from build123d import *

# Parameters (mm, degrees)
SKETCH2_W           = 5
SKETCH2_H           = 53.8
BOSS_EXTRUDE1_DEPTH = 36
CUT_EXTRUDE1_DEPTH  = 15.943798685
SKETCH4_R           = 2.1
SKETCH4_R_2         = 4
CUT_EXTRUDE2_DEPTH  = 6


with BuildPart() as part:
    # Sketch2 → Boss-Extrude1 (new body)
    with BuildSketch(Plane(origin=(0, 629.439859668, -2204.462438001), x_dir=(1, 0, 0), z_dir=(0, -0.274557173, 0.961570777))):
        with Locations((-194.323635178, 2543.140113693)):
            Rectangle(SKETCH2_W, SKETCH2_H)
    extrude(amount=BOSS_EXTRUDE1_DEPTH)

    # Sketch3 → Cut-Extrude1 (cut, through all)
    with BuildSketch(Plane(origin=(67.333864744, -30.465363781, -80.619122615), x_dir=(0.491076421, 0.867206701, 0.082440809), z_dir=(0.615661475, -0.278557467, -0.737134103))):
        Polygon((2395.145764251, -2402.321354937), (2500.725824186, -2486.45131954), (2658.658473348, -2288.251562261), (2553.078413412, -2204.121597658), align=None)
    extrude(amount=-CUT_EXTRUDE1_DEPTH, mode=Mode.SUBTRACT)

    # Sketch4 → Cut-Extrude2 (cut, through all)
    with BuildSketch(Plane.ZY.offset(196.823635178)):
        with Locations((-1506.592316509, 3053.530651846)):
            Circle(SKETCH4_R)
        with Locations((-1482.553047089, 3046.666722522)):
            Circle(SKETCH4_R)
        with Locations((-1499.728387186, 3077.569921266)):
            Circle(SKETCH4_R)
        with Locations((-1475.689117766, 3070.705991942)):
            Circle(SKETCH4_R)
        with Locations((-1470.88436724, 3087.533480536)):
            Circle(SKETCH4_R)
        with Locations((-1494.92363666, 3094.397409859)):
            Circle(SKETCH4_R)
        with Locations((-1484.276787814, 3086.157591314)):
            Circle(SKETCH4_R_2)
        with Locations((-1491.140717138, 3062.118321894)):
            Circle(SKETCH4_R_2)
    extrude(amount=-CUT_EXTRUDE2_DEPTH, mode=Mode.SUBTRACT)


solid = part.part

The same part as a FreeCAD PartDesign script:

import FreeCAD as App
import Part
import Sketcher
from FreeCAD import Vector


def add_polygon(sketch, points):
    """Adds a closed chain of lines whose ends are joined by coincident constraints."""
    first, n = sketch.GeometryCount, len(points)
    for a, b in zip(points, points[1:] + points[:1]):
        sketch.addGeometry(Part.LineSegment(App.Vector(*a, 0), App.Vector(*b, 0)), False)
    for i in range(n):
        sketch.addConstraint(Sketcher.Constraint("Coincident", first + i, 2, first + (i + 1) % n, 1))

doc = App.newDocument("Part")
params = doc.addObject("Spreadsheet::Sheet", "Params")
for row, (alias, value) in enumerate([
    ("sketch1_width", "5 mm"),
    ("sketch1_height", "53.8 mm"),
    ("pad1_length", "36 mm"),
    ("sketch2_length", "135 mm"),
    ("sketch3_diameter", "8 mm"),
    ("sketch3_diameter2", "4.2 mm"),
], start=1):
    params.set(f"A{row}", alias)
    params.set(f"B{row}", "=" + value)
    params.setAlias(f"B{row}", alias)

body = doc.addObject("PartDesign::Body", "Body")

sketch1 = body.newObject("Sketcher::SketchObject", "Sketch")
sketch1.Placement = App.Placement(Vector(0, 629.43986, -2204.462438), App.Rotation(Vector(1, 0, 0), Vector(0, 0.961570777, 0.274557173), Vector(0, -0.274557173, 0.961570777), "ZXY"))
add_polygon(sketch1, [(-197, 2570), (-197, 2516), (-192, 2516), (-192, 2570)])
sketch1.addConstraint(Sketcher.Constraint("Vertical", 0))
sketch1.addConstraint(Sketcher.Constraint("Horizontal", 1))
sketch1.addConstraint(Sketcher.Constraint("Vertical", 2))
sketch1.addConstraint(Sketcher.Constraint("Horizontal", 3))
sketch1.addConstraint(Sketcher.Constraint("DistanceX", 1, 1, 1, 2, 5.0))
sketch1.addConstraint(Sketcher.Constraint("DistanceY", 0, 2, 0, 1, 53.8))
sketch1.addConstraint(Sketcher.Constraint("DistanceX", 0, 2, -1, 1, 196.823635))
sketch1.addConstraint(Sketcher.Constraint("DistanceY", -1, 1, 0, 2, 2516.240115))
sketch1.setExpression("Constraints[8]", "Params.sketch1_width")
sketch1.setExpression("Constraints[9]", "Params.sketch1_height")
pad1 = body.newObject("PartDesign::Pad", "Pad")
pad1.Profile = sketch1
pad1.setExpression("Length", "Params.pad1_length")

sketch2 = body.newObject("Sketcher::SketchObject", "Sketch001")
sketch2.Placement = App.Placement(Vector(67.333865, -30.465364, -80.619123), App.Rotation(Vector(0.491076421, 0.867206701, 0.082440809), Vector(0.616283131, -0.412744807, 0.670698761), Vector(0.615661475, -0.278557467, -0.737134103), "ZXY"))
add_polygon(sketch2, [(2395, -2402), (2501, -2486), (2659, -2288), (2553, -2204)])
sketch2.addConstraint(Sketcher.Constraint("Perpendicular", 0, 1))
sketch2.addConstraint(Sketcher.Constraint("Perpendicular", 1, 2))
sketch2.addConstraint(Sketcher.Constraint("Perpendicular", 2, 3))
sketch2.addConstraint(Sketcher.Constraint("Distance", 0, 135.0))
sketch2.addConstraint(Sketcher.Constraint("DistanceY", 2, 2, -1, 1, 2204.121599))
sketch2.addConstraint(Sketcher.Constraint("DistanceY", 0, 2, -1, 1, 2486.451321))
sketch2.addConstraint(Sketcher.Constraint("DistanceX", 0, 2, 1, 2, 157.932649))
sketch2.addConstraint(Sketcher.Constraint("DistanceX", -1, 1, 0, 2, 2500.725825))
sketch2.setExpression("Constraints[7]", "Params.sketch2_length")
pocket1 = body.newObject("PartDesign::Pocket", "Pocket")
pocket1.Profile = sketch2
pocket1.Type = "ThroughAll"

sketch3 = body.newObject("Sketcher::SketchObject", "Sketch002")
sketch3.AttachmentSupport = (doc.getObject("YZ_Plane"), [""])
sketch3.MapMode = "FlatFace"
sketch3.AttachmentOffset = App.Placement(Vector(0, 0, -196.823635), App.Rotation())
sketch3.addGeometry(Part.Circle(Vector(3053.5, -1506.6, 0), Vector(0, 0, 1), 2.1), False)
sketch3.addGeometry(Part.Circle(Vector(3046.7, -1482.6, 0), Vector(0, 0, 1), 2.1), False)
sketch3.addGeometry(Part.Circle(Vector(3077.6, -1499.7, 0), Vector(0, 0, 1), 2.1), False)
sketch3.addGeometry(Part.Circle(Vector(3070.7, -1475.7, 0), Vector(0, 0, 1), 2.1), False)
sketch3.addGeometry(Part.Circle(Vector(3087.5, -1470.9, 0), Vector(0, 0, 1), 2.1), False)
sketch3.addGeometry(Part.Circle(Vector(3094.4, -1494.9, 0), Vector(0, 0, 1), 2.1), False)
sketch3.addGeometry(Part.Circle(Vector(3086.2, -1484.3, 0), Vector(0, 0, 1), 4), False)
sketch3.addGeometry(Part.Circle(Vector(3062.1, -1491.1, 0), Vector(0, 0, 1), 4), False)
sketch3.addConstraint(Sketcher.Constraint("Equal", 0, 1))
sketch3.addConstraint(Sketcher.Constraint("Equal", 1, 2))
sketch3.addConstraint(Sketcher.Constraint("Equal", 2, 3))
sketch3.addConstraint(Sketcher.Constraint("Equal", 3, 4))
sketch3.addConstraint(Sketcher.Constraint("Equal", 4, 5))
sketch3.addConstraint(Sketcher.Constraint("Equal", 6, 7))
sketch3.addConstraint(Sketcher.Constraint("Diameter", 6, 8.0))
sketch3.addConstraint(Sketcher.Constraint("Diameter", 0, 4.2))
sketch3.addConstraint(Sketcher.Constraint("DistanceX", 1, 3, 2, 3, 30.903199))
sketch3.addConstraint(Sketcher.Constraint("DistanceY", 0, 3, 3, 3, 30.903199))
sketch3.addConstraint(Sketcher.Constraint("DistanceY", 2, 3, 6, 3, 15.451599))
sketch3.addConstraint(Sketcher.Constraint("DistanceX", 3, 3, 6, 3, 15.451599))
sketch3.addConstraint(Sketcher.Constraint("DistanceY", 0, 3, 7, 3, 15.451599))
sketch3.addConstraint(Sketcher.Constraint("DistanceX", 7, 3, 2, 3, 15.451599))
sketch3.addConstraint(Sketcher.Constraint("DistanceX", -1, 1, 0, 3, 3053.530652))
sketch3.addConstraint(Sketcher.Constraint("DistanceX", -1, 1, 2, 3, 3077.569921))
sketch3.addConstraint(Sketcher.Constraint("DistanceX", -1, 1, 3, 3, 3070.705992))
sketch3.addConstraint(Sketcher.Constraint("DistanceX", -1, 1, 4, 3, 3087.533481))
sketch3.addConstraint(Sketcher.Constraint("DistanceX", -1, 1, 5, 3, 3094.39741))
sketch3.addConstraint(Sketcher.Constraint("DistanceY", 0, 3, 1, 3, 24.039269))
sketch3.addConstraint(Sketcher.Constraint("DistanceY", 0, 3, 2, 3, 6.863929))
sketch3.addConstraint(Sketcher.Constraint("DistanceY", 3, 3, 4, 3, 4.804751))
sketch3.addConstraint(Sketcher.Constraint("DistanceY", 2, 3, 5, 3, 4.804751))
sketch3.addConstraint(Sketcher.Constraint("DistanceY", 0, 3, -1, 1, 1506.592317))
sketch3.setExpression("Constraints[6]", "Params.sketch3_diameter")
sketch3.setExpression("Constraints[7]", "Params.sketch3_diameter2")
pocket2 = body.newObject("PartDesign::Pocket", "Pocket001")
pocket2.Profile = sketch3
pocket2.Type = "ThroughAll"
pocket2.Reversed = True

doc.recompute()
